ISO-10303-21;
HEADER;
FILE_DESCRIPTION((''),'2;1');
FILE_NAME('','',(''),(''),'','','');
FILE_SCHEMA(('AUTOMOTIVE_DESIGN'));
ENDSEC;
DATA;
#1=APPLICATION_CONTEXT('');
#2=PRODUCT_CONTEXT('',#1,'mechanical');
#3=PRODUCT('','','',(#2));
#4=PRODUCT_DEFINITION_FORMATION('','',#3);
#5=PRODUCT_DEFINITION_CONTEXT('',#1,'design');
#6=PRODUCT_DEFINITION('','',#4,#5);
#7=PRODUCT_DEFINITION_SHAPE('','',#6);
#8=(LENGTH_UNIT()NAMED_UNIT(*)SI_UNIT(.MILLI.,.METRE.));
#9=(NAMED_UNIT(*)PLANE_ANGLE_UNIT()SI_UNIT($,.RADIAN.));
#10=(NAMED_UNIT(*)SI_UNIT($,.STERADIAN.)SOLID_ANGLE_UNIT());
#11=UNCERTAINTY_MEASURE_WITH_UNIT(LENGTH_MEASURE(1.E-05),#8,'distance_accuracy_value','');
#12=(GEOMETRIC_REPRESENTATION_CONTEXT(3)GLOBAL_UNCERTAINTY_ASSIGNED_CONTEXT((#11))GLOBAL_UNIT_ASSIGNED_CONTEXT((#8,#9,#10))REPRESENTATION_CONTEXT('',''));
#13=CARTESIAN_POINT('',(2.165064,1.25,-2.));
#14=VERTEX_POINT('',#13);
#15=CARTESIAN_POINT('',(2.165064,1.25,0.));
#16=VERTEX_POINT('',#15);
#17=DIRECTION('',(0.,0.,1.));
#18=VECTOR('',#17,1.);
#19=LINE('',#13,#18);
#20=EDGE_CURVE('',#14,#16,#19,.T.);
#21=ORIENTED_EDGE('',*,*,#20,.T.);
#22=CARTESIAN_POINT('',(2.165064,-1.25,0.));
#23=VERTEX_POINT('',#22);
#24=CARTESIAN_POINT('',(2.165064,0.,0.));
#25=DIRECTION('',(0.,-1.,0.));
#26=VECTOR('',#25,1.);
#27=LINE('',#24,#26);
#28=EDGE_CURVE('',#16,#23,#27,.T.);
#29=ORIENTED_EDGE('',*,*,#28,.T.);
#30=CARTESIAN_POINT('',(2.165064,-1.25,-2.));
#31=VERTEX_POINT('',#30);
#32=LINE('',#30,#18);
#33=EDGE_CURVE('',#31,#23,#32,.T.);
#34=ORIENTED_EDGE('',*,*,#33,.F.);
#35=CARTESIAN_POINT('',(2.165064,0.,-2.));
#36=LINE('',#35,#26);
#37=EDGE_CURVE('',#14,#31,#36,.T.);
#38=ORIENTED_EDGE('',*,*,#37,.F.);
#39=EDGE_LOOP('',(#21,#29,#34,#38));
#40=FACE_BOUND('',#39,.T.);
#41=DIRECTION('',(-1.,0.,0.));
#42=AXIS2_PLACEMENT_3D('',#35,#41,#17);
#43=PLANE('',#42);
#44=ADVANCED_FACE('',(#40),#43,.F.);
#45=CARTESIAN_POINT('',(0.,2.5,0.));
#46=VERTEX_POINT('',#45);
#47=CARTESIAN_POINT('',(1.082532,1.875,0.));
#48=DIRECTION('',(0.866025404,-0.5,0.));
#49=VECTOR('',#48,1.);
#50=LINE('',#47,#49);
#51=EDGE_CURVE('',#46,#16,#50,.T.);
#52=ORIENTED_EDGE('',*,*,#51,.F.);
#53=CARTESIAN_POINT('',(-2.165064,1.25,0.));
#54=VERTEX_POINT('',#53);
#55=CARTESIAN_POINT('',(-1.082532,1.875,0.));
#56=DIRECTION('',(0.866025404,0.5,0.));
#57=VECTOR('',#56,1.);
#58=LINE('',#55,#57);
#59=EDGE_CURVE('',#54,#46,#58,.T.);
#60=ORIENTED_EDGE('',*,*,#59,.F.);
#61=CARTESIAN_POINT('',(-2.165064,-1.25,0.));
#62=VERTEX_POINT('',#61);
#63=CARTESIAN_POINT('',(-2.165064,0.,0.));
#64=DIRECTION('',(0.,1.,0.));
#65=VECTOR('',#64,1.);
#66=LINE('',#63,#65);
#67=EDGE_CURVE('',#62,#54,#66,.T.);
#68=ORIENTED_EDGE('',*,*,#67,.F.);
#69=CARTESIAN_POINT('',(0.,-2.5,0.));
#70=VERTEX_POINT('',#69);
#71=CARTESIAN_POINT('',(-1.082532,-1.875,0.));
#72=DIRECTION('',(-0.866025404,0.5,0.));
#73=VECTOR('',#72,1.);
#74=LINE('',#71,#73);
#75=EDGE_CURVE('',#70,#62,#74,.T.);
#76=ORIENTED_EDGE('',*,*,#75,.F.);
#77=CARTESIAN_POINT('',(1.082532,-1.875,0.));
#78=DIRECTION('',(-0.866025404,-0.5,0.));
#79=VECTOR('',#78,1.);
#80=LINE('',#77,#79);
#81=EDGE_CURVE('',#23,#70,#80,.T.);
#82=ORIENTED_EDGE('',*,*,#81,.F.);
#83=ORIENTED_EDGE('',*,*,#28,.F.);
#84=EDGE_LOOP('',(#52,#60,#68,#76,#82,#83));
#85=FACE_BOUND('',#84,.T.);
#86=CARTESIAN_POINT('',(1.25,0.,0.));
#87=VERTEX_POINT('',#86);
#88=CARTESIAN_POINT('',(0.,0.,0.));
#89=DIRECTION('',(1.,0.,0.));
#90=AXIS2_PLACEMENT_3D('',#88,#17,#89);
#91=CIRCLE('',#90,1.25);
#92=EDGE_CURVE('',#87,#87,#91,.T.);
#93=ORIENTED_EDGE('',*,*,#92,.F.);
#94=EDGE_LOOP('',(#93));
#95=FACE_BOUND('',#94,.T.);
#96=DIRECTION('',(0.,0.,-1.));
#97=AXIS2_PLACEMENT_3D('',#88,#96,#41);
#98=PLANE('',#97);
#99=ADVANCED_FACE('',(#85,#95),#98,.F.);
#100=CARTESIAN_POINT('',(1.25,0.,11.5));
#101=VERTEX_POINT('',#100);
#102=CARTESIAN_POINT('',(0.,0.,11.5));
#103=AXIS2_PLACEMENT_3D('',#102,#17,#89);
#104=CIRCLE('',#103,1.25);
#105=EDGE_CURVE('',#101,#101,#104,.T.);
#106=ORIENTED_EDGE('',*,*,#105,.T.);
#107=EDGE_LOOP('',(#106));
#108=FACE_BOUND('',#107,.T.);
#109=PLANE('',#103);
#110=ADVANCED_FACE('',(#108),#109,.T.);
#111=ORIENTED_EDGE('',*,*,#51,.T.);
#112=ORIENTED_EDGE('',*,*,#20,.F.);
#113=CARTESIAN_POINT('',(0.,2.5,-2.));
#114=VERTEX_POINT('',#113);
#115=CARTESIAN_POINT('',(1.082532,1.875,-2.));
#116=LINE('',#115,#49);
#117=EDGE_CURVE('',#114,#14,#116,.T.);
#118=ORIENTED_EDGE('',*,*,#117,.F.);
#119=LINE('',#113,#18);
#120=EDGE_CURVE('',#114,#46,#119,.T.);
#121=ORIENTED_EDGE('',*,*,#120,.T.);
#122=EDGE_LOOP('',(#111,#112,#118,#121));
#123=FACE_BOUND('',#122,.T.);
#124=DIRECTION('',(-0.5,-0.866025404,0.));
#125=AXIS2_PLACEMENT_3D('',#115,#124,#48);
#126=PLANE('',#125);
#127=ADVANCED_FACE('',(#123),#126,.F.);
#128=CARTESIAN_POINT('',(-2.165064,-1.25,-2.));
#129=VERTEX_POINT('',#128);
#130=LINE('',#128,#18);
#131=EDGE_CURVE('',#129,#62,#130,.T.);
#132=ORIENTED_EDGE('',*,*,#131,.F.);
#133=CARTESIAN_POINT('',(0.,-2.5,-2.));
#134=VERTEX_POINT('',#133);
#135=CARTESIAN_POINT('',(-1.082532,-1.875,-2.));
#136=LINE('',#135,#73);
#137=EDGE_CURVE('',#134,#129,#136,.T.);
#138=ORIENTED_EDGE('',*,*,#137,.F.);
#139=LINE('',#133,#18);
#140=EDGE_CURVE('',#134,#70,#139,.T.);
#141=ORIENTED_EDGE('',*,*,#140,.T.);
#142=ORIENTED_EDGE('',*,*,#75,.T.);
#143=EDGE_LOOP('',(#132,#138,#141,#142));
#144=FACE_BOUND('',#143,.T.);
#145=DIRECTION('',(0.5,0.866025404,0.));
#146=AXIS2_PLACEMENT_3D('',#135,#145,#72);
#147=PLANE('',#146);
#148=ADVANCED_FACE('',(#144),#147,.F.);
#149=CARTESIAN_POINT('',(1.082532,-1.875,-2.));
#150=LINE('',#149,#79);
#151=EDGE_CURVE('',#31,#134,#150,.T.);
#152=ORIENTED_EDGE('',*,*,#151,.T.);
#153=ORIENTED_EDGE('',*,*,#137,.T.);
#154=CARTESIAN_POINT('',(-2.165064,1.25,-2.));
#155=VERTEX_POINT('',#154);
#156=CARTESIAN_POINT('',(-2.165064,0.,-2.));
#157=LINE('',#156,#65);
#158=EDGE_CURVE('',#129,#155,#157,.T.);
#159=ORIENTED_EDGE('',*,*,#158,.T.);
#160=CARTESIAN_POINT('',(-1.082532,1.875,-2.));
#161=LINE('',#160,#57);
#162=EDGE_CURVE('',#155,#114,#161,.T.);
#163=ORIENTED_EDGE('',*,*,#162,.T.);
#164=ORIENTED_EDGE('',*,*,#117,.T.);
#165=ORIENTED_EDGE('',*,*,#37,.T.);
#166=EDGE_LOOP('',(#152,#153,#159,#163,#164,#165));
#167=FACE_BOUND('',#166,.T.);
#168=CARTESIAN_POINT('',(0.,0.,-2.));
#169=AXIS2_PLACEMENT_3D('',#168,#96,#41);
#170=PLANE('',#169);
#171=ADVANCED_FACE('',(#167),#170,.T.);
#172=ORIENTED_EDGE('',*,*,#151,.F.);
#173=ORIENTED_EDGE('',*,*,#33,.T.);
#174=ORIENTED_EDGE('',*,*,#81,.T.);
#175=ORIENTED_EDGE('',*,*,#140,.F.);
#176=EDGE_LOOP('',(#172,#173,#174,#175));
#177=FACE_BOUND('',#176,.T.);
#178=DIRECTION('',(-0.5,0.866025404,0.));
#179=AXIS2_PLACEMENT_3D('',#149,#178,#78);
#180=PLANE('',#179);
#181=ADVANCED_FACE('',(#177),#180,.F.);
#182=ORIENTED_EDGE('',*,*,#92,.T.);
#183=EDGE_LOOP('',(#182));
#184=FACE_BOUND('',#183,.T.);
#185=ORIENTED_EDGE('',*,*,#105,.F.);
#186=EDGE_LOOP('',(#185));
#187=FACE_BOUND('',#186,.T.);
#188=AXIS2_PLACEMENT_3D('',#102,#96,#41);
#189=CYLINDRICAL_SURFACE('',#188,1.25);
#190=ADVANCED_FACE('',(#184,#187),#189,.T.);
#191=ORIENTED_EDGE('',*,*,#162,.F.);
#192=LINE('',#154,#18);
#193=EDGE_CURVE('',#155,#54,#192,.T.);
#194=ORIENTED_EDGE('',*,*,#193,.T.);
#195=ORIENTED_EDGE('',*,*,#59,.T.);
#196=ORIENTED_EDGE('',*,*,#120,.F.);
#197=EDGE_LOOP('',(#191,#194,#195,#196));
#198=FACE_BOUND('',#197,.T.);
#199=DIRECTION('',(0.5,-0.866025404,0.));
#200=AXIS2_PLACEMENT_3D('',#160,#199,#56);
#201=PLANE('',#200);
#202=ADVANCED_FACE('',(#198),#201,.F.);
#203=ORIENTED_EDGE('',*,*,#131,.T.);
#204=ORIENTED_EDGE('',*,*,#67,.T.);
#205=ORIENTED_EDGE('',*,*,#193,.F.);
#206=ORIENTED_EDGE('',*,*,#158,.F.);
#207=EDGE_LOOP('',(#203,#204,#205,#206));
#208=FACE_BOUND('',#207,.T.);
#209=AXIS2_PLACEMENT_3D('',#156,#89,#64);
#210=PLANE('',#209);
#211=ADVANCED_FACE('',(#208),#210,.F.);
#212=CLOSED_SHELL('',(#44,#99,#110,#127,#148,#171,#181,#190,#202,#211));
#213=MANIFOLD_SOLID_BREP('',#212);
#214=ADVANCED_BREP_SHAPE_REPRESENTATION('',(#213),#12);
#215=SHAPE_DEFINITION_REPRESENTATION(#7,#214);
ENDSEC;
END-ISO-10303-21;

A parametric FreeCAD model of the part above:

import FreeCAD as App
import Part
import Sketcher
from FreeCAD import Vector
Q = App.Units.Quantity


def add_polygon(sketch, points):
    """Adds a closed chain of lines whose ends are joined by coincident constraints."""
    first, n = sketch.GeometryCount, len(points)
    for a, b in zip(points, points[1:] + points[:1]):
        sketch.addGeometry(Part.LineSegment(App.Vector(*a, 0), App.Vector(*b, 0)), False)
    for i in range(n):
        sketch.addConstraint(Sketcher.Constraint("Coincident", first + i, 2, first + (i + 1) % n, 1))

doc = App.newDocument("Part")
body = doc.addObject("PartDesign::Body", "Body")

sketch1 = body.newObject("Sketcher::SketchObject", "Sketch")
sketch1.AttachmentSupport = (doc.getObject("XY_Plane"), [""])
sketch1.MapMode = "FlatFace"
sketch1.addGeometry(Part.Circle(Vector(0, 0, 0), Vector(0, 0, 1), 1.2), False)
sketch1.addConstraint([
    Sketcher.Constraint("Coincident", 0, 3, -1, 1),
    Sketcher.Constraint("Diameter", 0, 2.5),
])
pad1 = body.newObject("PartDesign::Pad", "Pad")
pad1.Profile = sketch1
pad1.Length = 11.5

sketch2 = body.newObject("Sketcher::SketchObject", "Sketch001")
sketch2.AttachmentSupport = (doc.getObject("XY_Plane"), [""])
sketch2.MapMode = "FlatFace"
add_polygon(sketch2, [(0, 2.5), (2.2, 1.2), (2.2, -1.2), (0, -2.5), (-2.2, -1.2), (-2.2, 1.2)])
sketch2.addConstraint([
    Sketcher.Constraint("Vertical", 1),
    Sketcher.Constraint("Vertical", 4),
    Sketcher.Constraint("Symmetric", 0, 2, 3, 2, -1, 1),
    Sketcher.Constraint("Symmetric", 2, 2, 5, 2, -1, 1),
    Sketcher.Constraint("PointOnObject", 2, 2, -2),
    Sketcher.Constraint("Parallel", 2, 5),
    Sketcher.Constraint("Horizontal", 1, 2, 3, 2),
    Sketcher.Constraint("Angle", 0, Q("-30 deg")),
    Sketcher.Constraint("DistanceY", 1, 2, 1, 1, 2.5),
    Sketcher.Constraint("DistanceY", 2, 2, 5, 2, 5.0),
])
pad2 = body.newObject("PartDesign::Pad", "Pad001")
pad2.Profile = sketch2
pad2.Length = 2
pad2.Reversed = True

doc.recompute()
